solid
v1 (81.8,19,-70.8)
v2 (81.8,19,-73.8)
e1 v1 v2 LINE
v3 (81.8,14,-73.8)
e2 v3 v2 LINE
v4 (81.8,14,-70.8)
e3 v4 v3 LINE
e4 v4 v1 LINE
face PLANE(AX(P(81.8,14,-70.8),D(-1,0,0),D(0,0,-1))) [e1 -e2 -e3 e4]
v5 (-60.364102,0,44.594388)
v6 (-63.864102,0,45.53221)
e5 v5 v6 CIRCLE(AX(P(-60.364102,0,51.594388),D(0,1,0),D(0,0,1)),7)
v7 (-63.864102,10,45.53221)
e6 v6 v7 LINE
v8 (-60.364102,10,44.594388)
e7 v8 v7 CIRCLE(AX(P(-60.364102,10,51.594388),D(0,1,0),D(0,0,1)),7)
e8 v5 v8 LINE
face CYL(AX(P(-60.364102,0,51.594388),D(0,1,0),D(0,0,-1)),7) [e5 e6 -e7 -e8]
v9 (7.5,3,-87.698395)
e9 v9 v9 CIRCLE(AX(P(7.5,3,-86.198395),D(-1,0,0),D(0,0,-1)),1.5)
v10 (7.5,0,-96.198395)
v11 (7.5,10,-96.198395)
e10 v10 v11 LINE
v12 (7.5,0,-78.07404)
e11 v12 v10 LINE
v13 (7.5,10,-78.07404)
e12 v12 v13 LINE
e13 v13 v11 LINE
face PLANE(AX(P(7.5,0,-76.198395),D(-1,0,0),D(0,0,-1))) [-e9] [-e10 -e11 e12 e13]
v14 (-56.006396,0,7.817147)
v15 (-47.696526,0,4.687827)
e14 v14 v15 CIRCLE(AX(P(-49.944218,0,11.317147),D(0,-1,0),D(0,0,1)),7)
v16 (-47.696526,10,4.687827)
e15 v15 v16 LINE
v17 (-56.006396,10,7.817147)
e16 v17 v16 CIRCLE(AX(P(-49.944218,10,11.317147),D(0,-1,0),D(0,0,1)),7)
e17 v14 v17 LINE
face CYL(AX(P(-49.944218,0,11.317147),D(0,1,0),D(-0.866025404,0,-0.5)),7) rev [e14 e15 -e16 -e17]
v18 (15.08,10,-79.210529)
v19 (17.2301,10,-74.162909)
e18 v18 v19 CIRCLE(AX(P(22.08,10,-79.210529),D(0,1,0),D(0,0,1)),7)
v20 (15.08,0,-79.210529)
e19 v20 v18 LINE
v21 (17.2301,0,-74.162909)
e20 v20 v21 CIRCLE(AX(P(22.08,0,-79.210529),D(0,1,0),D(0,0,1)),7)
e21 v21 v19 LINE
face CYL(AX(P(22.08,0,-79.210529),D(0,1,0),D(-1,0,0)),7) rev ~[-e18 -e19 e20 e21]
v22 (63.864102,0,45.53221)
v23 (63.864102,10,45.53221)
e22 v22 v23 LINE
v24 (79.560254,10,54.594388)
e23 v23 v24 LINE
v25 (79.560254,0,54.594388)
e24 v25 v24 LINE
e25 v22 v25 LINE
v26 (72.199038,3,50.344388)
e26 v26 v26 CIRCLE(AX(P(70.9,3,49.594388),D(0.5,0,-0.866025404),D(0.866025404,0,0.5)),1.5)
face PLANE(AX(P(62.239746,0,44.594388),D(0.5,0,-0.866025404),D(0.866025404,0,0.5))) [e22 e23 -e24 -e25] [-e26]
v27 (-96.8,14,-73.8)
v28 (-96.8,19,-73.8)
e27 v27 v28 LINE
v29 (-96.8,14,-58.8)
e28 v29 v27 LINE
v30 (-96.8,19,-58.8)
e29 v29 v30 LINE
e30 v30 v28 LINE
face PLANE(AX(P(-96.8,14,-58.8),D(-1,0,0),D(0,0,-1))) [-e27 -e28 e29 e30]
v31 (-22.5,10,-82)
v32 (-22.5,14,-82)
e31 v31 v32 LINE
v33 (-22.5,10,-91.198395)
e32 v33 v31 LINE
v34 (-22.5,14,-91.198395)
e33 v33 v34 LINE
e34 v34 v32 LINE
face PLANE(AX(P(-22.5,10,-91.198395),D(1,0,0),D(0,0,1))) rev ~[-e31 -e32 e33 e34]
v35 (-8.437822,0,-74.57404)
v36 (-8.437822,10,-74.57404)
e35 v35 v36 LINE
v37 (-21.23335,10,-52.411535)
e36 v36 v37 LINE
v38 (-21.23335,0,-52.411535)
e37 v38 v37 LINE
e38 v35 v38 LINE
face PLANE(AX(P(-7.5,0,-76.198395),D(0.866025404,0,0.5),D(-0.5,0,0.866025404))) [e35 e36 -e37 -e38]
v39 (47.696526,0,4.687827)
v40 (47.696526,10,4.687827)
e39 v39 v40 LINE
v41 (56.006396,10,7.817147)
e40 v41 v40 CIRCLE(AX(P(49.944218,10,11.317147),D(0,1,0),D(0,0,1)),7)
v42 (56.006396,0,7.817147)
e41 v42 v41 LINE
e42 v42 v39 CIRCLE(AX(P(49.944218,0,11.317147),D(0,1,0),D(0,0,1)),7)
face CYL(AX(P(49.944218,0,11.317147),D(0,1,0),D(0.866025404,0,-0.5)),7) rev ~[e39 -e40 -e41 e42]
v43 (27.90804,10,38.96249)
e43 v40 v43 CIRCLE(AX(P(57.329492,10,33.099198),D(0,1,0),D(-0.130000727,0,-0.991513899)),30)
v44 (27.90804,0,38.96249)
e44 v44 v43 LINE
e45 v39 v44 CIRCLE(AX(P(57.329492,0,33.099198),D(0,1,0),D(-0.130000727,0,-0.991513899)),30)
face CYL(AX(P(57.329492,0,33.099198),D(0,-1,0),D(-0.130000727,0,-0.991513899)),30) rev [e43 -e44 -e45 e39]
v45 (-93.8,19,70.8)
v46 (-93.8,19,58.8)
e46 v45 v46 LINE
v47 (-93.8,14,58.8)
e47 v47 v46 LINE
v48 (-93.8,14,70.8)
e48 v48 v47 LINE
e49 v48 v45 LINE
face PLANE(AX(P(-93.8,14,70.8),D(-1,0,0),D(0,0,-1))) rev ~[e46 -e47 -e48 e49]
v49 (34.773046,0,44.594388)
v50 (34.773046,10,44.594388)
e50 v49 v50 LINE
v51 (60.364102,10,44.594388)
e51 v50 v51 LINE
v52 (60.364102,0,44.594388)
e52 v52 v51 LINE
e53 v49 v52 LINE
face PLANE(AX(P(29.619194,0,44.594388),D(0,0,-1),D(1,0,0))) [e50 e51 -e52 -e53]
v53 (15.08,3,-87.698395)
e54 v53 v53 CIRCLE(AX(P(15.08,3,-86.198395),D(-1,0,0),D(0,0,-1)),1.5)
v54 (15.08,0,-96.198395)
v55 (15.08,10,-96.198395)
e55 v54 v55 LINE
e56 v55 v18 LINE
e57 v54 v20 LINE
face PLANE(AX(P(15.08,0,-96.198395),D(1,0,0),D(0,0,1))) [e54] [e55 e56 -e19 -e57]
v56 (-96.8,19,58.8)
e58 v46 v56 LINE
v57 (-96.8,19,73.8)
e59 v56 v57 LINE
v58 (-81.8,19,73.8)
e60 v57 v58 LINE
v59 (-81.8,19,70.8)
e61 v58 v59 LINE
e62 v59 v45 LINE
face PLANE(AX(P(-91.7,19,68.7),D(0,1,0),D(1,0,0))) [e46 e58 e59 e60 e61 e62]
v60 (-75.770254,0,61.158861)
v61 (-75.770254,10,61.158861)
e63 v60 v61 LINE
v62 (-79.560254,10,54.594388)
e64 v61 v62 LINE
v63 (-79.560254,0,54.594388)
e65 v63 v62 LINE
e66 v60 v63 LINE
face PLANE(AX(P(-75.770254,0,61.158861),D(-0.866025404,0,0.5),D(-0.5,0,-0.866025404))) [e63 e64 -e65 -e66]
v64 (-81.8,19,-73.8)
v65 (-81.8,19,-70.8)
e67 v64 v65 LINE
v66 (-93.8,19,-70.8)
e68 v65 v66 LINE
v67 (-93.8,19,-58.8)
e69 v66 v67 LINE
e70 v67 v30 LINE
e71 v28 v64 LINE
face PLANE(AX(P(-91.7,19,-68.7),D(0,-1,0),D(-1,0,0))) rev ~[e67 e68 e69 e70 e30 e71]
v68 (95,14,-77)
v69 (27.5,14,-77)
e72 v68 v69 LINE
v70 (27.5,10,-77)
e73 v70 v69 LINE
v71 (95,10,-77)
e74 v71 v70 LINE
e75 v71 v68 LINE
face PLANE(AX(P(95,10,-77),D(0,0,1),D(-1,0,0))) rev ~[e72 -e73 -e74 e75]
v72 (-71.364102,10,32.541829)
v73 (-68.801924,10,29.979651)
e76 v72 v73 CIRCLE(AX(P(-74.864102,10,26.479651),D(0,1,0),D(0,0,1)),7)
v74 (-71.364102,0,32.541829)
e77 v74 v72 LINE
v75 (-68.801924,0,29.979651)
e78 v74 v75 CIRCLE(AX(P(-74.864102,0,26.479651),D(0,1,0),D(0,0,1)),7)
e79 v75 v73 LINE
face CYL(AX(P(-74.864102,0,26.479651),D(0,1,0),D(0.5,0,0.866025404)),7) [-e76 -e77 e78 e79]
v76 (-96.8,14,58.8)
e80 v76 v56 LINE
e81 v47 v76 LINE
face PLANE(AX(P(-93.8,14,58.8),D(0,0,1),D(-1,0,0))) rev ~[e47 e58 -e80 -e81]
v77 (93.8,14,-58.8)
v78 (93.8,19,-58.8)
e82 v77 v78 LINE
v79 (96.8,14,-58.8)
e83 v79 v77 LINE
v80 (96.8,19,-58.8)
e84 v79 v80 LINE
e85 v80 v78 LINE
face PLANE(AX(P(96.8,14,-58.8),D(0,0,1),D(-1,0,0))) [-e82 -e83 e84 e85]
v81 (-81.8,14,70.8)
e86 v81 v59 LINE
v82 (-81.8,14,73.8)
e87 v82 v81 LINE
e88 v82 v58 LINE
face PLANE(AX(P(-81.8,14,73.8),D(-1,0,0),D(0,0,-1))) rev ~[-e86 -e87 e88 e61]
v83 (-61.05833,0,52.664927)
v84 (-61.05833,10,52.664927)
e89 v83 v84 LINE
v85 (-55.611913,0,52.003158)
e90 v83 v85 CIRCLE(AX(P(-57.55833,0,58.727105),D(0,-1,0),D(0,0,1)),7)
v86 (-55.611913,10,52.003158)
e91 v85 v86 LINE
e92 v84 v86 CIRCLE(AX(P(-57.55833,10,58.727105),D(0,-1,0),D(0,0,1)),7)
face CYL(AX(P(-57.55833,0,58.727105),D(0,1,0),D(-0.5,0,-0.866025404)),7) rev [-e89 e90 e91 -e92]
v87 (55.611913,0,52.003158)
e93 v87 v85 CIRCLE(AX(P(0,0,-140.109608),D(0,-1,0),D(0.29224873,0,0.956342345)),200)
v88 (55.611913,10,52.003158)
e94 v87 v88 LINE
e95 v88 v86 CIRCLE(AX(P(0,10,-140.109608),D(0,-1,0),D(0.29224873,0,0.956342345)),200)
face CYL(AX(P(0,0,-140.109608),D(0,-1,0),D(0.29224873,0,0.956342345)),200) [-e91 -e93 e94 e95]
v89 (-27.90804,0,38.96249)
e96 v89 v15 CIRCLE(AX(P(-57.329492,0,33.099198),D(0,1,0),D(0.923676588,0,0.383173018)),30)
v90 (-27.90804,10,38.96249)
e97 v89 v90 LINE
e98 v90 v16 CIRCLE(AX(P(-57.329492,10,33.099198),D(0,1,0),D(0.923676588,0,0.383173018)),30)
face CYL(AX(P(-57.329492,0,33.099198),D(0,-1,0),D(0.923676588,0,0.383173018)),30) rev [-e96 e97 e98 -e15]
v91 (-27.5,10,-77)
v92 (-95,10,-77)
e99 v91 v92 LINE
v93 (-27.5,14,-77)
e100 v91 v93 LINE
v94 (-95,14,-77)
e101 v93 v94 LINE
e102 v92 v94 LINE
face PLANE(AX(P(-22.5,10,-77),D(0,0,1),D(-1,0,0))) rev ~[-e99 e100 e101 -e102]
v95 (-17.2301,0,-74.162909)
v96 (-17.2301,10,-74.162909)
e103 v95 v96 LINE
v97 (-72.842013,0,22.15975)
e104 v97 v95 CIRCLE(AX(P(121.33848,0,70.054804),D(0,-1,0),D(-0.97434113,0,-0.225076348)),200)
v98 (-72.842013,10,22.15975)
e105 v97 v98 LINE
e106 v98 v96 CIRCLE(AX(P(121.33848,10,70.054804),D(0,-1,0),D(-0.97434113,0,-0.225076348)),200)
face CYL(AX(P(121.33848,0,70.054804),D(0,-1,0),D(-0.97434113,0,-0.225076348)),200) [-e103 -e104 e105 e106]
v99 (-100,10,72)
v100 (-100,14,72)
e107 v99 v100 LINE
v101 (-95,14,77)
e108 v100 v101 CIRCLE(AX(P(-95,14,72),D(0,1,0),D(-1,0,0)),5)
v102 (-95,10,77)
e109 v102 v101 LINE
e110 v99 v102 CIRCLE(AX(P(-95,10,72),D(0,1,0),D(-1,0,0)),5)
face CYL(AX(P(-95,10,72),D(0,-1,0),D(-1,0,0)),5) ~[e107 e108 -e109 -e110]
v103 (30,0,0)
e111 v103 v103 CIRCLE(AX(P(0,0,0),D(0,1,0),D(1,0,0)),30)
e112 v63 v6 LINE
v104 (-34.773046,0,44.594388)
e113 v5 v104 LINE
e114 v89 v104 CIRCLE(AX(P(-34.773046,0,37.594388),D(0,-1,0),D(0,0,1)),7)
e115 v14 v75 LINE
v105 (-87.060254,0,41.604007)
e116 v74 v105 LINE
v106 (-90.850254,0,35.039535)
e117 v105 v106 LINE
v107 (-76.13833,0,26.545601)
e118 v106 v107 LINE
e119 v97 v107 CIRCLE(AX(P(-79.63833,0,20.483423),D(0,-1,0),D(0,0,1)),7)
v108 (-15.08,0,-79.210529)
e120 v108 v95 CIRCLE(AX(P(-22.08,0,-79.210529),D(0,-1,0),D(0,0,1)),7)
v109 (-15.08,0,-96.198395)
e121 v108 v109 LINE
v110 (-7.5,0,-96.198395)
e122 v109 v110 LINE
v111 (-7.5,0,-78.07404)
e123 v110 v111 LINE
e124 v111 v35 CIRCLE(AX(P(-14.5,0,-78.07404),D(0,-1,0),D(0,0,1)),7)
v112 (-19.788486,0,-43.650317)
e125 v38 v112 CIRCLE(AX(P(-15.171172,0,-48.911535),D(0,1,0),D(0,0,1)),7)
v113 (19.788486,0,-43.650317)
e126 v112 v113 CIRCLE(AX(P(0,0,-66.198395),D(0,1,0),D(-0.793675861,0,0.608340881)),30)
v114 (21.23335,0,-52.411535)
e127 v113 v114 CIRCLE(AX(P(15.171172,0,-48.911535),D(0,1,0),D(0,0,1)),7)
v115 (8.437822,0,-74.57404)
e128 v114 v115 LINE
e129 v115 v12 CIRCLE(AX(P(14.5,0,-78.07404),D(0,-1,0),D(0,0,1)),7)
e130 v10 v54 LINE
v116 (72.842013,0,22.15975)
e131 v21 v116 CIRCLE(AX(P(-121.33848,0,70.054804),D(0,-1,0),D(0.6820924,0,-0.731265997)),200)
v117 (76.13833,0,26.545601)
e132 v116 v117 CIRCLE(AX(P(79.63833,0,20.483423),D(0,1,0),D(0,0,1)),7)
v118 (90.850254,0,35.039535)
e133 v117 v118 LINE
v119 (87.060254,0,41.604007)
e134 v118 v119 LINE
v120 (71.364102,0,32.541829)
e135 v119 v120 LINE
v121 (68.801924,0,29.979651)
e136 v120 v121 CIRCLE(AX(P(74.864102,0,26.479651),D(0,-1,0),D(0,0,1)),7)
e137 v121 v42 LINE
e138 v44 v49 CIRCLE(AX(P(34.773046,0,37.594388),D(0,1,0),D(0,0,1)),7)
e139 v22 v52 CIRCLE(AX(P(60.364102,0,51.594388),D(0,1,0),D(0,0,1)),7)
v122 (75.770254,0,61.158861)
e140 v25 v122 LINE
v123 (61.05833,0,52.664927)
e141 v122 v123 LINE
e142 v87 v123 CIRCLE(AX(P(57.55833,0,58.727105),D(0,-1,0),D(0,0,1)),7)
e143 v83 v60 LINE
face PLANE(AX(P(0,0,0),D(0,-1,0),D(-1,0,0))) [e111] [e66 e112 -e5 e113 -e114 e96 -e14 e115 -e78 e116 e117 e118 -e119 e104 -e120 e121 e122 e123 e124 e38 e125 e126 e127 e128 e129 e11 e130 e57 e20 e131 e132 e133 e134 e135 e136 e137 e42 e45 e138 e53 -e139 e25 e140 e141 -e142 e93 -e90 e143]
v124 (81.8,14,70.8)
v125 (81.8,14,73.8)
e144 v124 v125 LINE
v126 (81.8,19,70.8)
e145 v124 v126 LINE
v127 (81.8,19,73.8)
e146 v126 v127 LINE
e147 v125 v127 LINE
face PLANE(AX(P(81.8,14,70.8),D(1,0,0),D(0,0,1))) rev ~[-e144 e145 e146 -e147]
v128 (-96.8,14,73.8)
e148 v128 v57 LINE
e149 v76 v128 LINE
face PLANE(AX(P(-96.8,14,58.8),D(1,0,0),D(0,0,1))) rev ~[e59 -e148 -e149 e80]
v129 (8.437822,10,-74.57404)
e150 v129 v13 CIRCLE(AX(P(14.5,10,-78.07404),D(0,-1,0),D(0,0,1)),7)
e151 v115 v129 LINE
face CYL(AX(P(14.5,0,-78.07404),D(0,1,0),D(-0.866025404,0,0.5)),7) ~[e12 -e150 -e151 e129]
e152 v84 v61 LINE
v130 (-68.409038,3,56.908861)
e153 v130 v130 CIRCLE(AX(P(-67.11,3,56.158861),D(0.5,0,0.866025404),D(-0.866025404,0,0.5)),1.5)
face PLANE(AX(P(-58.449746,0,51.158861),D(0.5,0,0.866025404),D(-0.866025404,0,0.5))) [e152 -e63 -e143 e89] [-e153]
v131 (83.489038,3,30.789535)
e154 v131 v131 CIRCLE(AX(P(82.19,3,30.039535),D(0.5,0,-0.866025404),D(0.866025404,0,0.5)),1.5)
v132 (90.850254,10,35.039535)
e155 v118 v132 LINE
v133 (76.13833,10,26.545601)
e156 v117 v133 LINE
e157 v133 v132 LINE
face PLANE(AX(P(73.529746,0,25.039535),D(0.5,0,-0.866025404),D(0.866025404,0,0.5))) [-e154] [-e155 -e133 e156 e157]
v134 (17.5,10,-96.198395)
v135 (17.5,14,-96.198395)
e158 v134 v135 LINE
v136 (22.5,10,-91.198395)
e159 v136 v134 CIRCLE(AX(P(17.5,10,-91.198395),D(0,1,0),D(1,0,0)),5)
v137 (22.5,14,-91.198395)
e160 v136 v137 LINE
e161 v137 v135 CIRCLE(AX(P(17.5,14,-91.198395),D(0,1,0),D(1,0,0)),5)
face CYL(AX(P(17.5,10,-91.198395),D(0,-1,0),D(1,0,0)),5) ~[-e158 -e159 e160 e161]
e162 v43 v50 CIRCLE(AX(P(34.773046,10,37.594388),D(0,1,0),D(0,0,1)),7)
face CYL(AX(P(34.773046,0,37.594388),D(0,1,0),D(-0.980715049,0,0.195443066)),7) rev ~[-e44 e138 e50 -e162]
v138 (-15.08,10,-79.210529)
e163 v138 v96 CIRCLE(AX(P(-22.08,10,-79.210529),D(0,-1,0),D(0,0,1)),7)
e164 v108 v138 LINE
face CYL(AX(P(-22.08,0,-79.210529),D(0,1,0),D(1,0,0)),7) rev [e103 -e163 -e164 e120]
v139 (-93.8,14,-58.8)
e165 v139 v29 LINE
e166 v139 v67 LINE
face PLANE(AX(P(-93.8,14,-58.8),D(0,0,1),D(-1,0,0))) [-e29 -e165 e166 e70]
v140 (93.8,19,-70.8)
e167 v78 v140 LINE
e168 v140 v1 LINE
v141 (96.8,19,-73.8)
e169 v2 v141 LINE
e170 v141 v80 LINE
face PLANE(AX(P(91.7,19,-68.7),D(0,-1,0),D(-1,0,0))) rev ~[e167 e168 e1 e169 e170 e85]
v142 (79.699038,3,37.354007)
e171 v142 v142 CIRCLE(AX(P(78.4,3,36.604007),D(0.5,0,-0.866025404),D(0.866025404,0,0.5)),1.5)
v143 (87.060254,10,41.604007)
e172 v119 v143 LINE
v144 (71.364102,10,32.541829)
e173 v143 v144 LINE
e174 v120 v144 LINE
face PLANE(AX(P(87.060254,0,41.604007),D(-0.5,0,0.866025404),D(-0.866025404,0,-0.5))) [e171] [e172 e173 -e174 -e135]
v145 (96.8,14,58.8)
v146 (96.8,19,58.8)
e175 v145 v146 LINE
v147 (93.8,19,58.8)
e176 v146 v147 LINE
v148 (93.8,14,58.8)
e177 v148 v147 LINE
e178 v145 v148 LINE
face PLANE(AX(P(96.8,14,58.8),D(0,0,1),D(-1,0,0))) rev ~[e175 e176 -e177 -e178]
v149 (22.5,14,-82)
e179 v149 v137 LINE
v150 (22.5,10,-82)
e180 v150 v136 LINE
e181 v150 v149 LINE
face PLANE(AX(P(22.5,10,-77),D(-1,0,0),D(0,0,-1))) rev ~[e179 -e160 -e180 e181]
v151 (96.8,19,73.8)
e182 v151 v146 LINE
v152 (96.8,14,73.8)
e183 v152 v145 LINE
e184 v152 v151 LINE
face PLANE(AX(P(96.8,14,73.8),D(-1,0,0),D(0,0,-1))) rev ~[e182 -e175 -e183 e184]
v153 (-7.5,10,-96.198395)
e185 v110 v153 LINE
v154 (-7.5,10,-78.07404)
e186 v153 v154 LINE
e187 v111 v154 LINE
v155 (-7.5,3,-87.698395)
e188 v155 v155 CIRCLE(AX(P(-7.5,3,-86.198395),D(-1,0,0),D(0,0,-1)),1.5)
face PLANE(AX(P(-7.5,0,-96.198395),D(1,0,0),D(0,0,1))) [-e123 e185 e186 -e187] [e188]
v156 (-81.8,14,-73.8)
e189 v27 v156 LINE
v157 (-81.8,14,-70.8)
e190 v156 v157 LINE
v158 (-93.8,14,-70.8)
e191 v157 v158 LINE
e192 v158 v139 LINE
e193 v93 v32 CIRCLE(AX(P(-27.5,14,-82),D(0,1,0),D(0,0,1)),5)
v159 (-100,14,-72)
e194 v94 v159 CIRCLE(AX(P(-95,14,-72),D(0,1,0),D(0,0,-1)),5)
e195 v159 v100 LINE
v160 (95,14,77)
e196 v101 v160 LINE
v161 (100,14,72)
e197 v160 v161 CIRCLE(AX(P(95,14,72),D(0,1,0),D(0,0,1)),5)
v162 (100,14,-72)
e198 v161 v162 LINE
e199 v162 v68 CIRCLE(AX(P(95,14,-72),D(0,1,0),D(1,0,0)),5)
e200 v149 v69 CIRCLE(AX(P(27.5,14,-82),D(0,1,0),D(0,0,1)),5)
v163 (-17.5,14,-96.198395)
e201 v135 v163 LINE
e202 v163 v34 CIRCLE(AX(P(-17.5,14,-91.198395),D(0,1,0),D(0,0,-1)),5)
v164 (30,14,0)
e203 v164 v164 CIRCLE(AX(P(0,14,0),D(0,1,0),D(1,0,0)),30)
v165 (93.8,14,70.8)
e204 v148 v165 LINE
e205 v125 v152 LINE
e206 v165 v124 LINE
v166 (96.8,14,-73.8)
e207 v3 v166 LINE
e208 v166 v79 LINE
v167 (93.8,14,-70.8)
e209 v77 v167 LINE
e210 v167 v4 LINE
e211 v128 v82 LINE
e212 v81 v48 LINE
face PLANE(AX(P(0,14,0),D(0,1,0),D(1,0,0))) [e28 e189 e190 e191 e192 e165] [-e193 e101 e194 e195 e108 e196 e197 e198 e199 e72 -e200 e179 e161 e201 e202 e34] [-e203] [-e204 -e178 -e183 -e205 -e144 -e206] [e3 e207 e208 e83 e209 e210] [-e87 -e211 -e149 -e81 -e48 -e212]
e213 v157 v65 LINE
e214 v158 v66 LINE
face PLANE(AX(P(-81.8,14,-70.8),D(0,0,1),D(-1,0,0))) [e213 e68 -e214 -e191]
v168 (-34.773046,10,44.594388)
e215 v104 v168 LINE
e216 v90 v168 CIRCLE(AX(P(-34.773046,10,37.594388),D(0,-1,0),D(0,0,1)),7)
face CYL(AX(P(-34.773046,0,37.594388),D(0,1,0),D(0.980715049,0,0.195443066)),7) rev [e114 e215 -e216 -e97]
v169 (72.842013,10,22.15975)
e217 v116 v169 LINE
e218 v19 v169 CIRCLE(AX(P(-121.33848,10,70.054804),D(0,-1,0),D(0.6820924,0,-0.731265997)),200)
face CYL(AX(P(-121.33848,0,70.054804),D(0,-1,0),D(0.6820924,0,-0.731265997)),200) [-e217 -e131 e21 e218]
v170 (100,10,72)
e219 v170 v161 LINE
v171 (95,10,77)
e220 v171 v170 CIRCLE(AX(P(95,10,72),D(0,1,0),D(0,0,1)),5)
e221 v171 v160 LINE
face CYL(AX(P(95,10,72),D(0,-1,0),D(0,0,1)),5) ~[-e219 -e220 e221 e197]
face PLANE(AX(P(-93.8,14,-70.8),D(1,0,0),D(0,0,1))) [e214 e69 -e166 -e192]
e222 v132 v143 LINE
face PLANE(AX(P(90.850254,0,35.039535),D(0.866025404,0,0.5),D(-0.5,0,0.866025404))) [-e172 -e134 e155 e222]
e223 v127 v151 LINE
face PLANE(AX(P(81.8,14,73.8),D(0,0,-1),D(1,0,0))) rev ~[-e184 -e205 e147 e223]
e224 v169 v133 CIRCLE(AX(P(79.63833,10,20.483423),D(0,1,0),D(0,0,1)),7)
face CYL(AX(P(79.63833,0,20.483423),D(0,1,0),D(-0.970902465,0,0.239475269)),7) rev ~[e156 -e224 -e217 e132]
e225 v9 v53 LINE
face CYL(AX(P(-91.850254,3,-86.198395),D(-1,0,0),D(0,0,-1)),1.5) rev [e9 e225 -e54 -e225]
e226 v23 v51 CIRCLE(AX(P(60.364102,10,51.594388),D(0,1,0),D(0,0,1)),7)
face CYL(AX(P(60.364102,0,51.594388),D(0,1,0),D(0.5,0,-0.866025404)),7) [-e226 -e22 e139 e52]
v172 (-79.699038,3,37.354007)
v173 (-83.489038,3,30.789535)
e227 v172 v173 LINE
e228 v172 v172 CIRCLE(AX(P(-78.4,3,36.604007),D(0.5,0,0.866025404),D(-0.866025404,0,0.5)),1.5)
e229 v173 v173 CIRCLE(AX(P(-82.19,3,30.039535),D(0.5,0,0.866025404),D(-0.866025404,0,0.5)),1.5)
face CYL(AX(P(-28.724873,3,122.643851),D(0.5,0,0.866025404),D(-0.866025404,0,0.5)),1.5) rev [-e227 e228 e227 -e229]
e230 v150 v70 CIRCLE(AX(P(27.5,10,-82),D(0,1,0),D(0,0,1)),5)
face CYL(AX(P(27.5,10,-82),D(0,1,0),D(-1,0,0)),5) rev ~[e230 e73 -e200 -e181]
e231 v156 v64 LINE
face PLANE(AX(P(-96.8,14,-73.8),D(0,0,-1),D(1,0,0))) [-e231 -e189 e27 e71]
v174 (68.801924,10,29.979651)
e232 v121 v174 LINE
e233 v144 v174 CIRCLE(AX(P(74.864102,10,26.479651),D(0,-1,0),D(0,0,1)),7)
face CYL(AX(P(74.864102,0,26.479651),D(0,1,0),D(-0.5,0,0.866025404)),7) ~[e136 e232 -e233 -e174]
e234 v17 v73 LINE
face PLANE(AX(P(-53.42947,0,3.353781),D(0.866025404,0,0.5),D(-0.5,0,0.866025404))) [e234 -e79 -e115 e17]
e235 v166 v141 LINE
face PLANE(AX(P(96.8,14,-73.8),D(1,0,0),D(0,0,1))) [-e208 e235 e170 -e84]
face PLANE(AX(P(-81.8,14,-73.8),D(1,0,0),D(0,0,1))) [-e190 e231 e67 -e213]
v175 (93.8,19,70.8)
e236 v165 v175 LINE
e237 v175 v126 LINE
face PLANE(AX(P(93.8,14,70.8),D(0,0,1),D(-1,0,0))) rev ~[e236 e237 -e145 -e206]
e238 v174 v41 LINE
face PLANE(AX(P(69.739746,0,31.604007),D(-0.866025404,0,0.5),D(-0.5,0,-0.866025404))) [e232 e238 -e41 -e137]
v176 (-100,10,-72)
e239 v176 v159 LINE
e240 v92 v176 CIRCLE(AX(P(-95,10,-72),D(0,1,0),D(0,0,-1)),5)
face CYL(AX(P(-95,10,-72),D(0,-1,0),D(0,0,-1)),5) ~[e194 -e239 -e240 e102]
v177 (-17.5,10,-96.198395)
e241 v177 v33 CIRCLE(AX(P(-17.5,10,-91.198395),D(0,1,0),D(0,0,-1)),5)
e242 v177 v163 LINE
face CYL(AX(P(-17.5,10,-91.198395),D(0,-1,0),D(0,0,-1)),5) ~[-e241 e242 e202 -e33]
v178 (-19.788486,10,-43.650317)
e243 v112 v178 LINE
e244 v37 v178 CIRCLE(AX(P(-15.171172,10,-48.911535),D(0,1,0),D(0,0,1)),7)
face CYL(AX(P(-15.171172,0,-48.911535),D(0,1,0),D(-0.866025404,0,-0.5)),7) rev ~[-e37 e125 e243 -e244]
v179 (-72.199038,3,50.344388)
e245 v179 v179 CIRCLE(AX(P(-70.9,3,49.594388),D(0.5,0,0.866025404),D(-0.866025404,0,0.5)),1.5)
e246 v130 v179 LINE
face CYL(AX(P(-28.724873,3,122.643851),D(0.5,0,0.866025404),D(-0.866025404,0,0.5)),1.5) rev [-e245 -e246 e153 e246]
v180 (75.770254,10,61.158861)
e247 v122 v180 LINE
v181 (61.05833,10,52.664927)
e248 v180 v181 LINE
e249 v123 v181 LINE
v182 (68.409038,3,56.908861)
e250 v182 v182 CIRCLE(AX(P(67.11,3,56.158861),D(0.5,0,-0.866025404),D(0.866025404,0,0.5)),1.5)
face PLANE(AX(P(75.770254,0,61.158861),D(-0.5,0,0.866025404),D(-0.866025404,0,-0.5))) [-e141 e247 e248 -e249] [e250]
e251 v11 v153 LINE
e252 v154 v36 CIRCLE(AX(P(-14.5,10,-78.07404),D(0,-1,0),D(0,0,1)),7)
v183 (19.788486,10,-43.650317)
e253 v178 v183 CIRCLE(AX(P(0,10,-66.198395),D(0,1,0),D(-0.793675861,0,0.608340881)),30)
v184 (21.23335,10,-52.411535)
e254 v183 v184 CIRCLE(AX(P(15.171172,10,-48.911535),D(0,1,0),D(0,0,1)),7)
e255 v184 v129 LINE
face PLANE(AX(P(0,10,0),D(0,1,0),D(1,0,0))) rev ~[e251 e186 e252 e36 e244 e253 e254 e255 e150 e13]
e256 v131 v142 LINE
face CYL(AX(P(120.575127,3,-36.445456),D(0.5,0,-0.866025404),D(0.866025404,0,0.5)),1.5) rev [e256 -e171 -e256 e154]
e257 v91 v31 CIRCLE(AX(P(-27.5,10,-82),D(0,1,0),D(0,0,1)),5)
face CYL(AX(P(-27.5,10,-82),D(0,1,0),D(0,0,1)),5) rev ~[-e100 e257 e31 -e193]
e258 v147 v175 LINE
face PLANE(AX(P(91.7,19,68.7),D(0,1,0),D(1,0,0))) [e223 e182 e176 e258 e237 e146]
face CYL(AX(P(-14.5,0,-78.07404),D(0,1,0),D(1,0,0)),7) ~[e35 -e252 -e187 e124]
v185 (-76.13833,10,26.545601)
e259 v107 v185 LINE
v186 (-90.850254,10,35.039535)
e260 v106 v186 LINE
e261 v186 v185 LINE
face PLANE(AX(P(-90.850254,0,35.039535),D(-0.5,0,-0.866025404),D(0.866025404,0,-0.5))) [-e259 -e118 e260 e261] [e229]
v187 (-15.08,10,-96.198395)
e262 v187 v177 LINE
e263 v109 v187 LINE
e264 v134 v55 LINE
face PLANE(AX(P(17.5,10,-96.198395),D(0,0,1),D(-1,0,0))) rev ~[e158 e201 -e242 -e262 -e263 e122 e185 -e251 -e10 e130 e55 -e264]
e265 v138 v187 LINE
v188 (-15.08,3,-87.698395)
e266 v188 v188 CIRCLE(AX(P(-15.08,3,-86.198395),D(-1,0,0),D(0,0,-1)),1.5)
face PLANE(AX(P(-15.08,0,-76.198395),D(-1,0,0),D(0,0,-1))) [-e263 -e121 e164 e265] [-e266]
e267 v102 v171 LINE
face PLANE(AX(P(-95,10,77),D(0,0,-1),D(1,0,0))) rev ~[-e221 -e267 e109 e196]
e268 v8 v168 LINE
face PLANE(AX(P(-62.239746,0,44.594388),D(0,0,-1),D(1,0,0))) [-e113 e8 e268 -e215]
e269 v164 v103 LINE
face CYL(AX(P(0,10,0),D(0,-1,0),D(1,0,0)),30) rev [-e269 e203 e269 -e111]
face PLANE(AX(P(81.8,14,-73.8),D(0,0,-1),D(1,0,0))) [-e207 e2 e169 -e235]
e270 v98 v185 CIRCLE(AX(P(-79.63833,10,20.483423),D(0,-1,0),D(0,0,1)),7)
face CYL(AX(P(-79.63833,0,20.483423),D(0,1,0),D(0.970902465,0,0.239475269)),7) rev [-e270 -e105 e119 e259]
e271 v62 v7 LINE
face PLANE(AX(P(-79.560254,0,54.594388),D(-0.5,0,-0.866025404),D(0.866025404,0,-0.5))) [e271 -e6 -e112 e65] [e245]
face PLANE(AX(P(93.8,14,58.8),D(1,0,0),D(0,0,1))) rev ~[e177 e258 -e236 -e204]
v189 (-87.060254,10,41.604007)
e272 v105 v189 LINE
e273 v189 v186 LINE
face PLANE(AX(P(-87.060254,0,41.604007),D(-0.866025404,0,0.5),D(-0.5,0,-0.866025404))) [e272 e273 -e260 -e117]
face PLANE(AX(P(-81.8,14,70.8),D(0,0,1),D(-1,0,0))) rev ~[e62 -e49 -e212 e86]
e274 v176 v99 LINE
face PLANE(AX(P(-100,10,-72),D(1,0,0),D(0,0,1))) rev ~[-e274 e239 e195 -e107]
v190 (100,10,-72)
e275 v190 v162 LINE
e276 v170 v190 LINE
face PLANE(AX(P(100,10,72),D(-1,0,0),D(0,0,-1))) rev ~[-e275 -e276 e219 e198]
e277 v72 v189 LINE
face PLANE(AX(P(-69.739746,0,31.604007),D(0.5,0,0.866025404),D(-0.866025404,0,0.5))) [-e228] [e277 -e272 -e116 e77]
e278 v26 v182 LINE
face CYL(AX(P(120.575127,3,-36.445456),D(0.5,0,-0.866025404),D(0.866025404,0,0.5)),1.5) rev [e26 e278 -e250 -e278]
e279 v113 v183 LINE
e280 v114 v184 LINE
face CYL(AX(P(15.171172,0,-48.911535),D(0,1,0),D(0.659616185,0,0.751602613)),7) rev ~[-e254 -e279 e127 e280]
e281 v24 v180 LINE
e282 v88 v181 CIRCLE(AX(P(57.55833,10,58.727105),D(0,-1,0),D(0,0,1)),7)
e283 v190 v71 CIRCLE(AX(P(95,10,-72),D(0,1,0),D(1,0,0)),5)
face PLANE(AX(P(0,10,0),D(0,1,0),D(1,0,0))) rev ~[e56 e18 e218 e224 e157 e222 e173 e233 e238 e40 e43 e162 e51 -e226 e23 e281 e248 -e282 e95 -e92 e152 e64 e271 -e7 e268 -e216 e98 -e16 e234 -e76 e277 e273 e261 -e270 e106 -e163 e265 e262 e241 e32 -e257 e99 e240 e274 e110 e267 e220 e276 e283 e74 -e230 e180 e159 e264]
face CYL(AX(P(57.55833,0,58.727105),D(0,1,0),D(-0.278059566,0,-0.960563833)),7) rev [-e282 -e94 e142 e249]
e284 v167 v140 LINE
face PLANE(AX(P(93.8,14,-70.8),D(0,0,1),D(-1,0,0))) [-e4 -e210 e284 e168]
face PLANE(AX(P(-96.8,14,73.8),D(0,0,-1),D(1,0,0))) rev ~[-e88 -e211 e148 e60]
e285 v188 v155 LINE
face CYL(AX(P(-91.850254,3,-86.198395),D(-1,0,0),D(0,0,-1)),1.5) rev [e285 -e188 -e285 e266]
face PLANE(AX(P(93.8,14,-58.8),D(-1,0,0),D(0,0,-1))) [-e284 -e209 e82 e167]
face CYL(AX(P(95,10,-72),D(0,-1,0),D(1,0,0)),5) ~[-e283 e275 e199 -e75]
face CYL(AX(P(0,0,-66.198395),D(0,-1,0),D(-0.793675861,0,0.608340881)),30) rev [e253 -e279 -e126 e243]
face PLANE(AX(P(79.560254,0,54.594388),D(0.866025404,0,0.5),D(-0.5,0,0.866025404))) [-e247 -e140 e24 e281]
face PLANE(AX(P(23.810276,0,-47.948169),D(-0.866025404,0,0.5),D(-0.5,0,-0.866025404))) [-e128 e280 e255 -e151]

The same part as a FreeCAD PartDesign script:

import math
import FreeCAD as App
import Part
import Sketcher
Q = App.Units.Quantity


def edges_at(feature, points):
    """Names of the edges that pass closest to the given points."""
    edges = feature.Shape.Edges
    near = lambda p: min(range(len(edges)), key=lambda i: edges[i].distToShape(Part.Vertex(*p))[0])
    return sorted({f"Edge{near(p) + 1}" for p in points})

doc = App.newDocument("Part")
body = doc.addObject("PartDesign::Body", "Body")

# Sketch on XZ plane
sketch1 = doc.addObject("Sketcher::SketchObject", "Sketch")
body.addObject(sketch1)
sketch1.AttachmentSupport = (doc.XZ_Plane, [""])
sketch1.MapMode = "FlatFace"
sketch1.addGeometry(Part.LineSegment(App.Vector(-15, -96, 0), App.Vector(-15, -76, 0)), False)
sketch1.addGeometry(Part.ArcOfCircle(Part.Circle(App.Vector(121, 70, 0), App.Vector(0, 0, 1), 200), math.radians(-167), math.radians(-133)), False)
sketch1.addGeometry(Part.LineSegment(App.Vector(-74, 25, 0), App.Vector(-91, 35, 0)), False)
sketch1.addGeometry(Part.LineSegment(App.Vector(-91, 35, 0), App.Vector(-87, 42, 0)), False)
sketch1.addGeometry(Part.LineSegment(App.Vector(-87, 42, 0), App.Vector(-70, 32, 0)), False)
sketch1.addGeometry(Part.LineSegment(App.Vector(-70, 32, 0), App.Vector(-53, 3, 0)), False)
sketch1.addGeometry(Part.ArcOfCircle(Part.Circle(App.Vector(-57, 33, 0), App.Vector(0, 0, 1), 30), math.radians(-83), math.radians(23)), False)
sketch1.addGeometry(Part.LineSegment(App.Vector(-30, 45, 0), App.Vector(-62, 45, 0)), False)
sketch1.addGeometry(Part.LineSegment(App.Vector(-62, 45, 0), App.Vector(-80, 55, 0)), False)
sketch1.addGeometry(Part.LineSegment(App.Vector(-80, 55, 0), App.Vector(-76, 61, 0)), False)
sketch1.addGeometry(Part.LineSegment(App.Vector(-76, 61, 0), App.Vector(-58, 51, 0)), False)
sketch1.addGeometry(Part.ArcOfCircle(Part.Circle(App.Vector(0, -140, 0), App.Vector(0, 0, 1), 200), math.radians(73), math.radians(107)), False)
sketch1.addGeometry(Part.LineSegment(App.Vector(58, 51, 0), App.Vector(76, 61, 0)), False)
sketch1.addGeometry(Part.LineSegment(App.Vector(76, 61, 0), App.Vector(80, 55, 0)), False)
sketch1.addGeometry(Part.LineSegment(App.Vector(80, 55, 0), App.Vector(62, 45, 0)), False)
sketch1.addGeometry(Part.LineSegment(App.Vector(62, 45, 0), App.Vector(30, 45, 0)), False)
sketch1.addGeometry(Part.ArcOfCircle(Part.Circle(App.Vector(57, 33, 0), App.Vector(0, 0, 1), 30), math.radians(157), math.radians(263)), False)
sketch1.addGeometry(Part.LineSegment(App.Vector(53, 3, 0), App.Vector(70, 32, 0)), False)
sketch1.addGeometry(Part.LineSegment(App.Vector(70, 32, 0), App.Vector(87, 42, 0)), False)
sketch1.addGeometry(Part.LineSegment(App.Vector(87, 42, 0), App.Vector(91, 35, 0)), False)
sketch1.addGeometry(Part.LineSegment(App.Vector(91, 35, 0), App.Vector(74, 25, 0)), False)
sketch1.addGeometry(Part.ArcOfCircle(Part.Circle(App.Vector(-121, 70, 0), App.Vector(0, 0, 1), 200), math.radians(-47), math.radians(-13)), False)
sketch1.addGeometry(Part.LineSegment(App.Vector(15, -76, 0), App.Vector(15, -96, 0)), False)
sketch1.addGeometry(Part.LineSegment(App.Vector(15, -96, 0), App.Vector(8, -96, 0)), False)
sketch1.addGeometry(Part.LineSegment(App.Vector(8, -96, 0), App.Vector(8, -76, 0)), False)
sketch1.addGeometry(Part.LineSegment(App.Vector(8, -76, 0), App.Vector(24, -48, 0)), False)
sketch1.addGeometry(Part.ArcOfCircle(Part.Circle(App.Vector(0, -66, 0), App.Vector(0, 0, 1), 30), math.radians(37), math.radians(143)), False)
sketch1.addGeometry(Part.LineSegment(App.Vector(-24, -48, 0), App.Vector(-8, -76, 0)), False)
sketch1.addGeometry(Part.LineSegment(App.Vector(-8, -76, 0), App.Vector(-8, -96, 0)), False)
sketch1.addGeometry(Part.LineSegment(App.Vector(-8, -96, 0), App.Vector(-15, -96, 0)), False)
sketch1.addGeometry(Part.Circle(App.Vector(0, 0, 0), App.Vector(0, 0, 1), 30), False)
sketch1.addConstraint(Sketcher.Constraint("Coincident", 0, 2, 1, 2))
sketch1.addConstraint(Sketcher.Constraint("Coincident", 1, 1, 2, 1))
sketch1.addConstraint(Sketcher.Constraint("Coincident", 2, 2, 3, 1))
sketch1.addConstraint(Sketcher.Constraint("Coincident", 3, 2, 4, 1))
sketch1.addConstraint(Sketcher.Constraint("Coincident", 4, 2, 5, 1))
sketch1.addConstraint(Sketcher.Constraint("Coincident", 5, 2, 6, 1))
sketch1.addConstraint(Sketcher.Constraint("Coincident", 6, 2, 7, 1))
sketch1.addConstraint(Sketcher.Constraint("Coincident", 7, 2, 8, 1))
sketch1.addConstraint(Sketcher.Constraint("Coincident", 8, 2, 9, 1))
sketch1.addConstraint(Sketcher.Constraint("Coincident", 9, 2, 10, 1))
sketch1.addConstraint(Sketcher.Constraint("Coincident", 10, 2, 11, 2))
sketch1.addConstraint(Sketcher.Constraint("Coincident", 11, 1, 12, 1))
sketch1.addConstraint(Sketcher.Constraint("Coincident", 12, 2, 13, 1))
sketch1.addConstraint(Sketcher.Constraint("Coincident", 13, 2, 14, 1))
sketch1.addConstraint(Sketcher.Constraint("Coincident", 14, 2, 15, 1))
sketch1.addConstraint(Sketcher.Constraint("Coincident", 15, 2, 16, 1))
sketch1.addConstraint(Sketcher.Constraint("Coincident", 16, 2, 17, 1))
sketch1.addConstraint(Sketcher.Constraint("Coincident", 17, 2, 18, 1))
sketch1.addConstraint(Sketcher.Constraint("Coincident", 18, 2, 19, 1))
sketch1.addConstraint(Sketcher.Constraint("Coincident", 19, 2, 20, 1))
sketch1.addConstraint(Sketcher.Constraint("Coincident", 20, 2, 21, 2))
sketch1.addConstraint(Sketcher.Constraint("Coincident", 21, 1, 22, 1))
sketch1.addConstraint(Sketcher.Constraint("Coincident", 22, 2, 23, 1))
sketch1.addConstraint(Sketcher.Constraint("Coincident", 23, 2, 24, 1))
sketch1.addConstraint(Sketcher.Constraint("Coincident", 24, 2, 25, 1))
sketch1.addConstraint(Sketcher.Constraint("Coincident", 25, 2, 26, 1))
sketch1.addConstraint(Sketcher.Constraint("Coincident", 26, 2, 27, 1))
sketch1.addConstraint(Sketcher.Constraint("Coincident", 27, 2, 28, 1))
sketch1.addConstraint(Sketcher.Constraint("Coincident", 28, 2, 29, 1))
sketch1.addConstraint(Sketcher.Constraint("Coincident", 29, 2, 0, 1))
sketch1.addConstraint(Sketcher.Constraint("Vertical", 0))
sketch1.addConstraint(Sketcher.Constraint("Horizontal", 7))
sketch1.addConstraint(Sketcher.Constraint("Horizontal", 15))
sketch1.addConstraint(Sketcher.Constraint("Vertical", 22))
sketch1.addConstraint(Sketcher.Constraint("Horizontal", 23))
sketch1.addConstraint(Sketcher.Constraint("Vertical", 24))
sketch1.addConstraint(Sketcher.Constraint("Vertical", 28))
sketch1.addConstraint(Sketcher.Constraint("Horizontal", 29))
sketch1.addConstraint(Sketcher.Constraint("Coincident", 30, 3, -1, 1))
sketch1.addConstraint(Sketcher.Constraint("Equal", 1, 11))
sketch1.addConstraint(Sketcher.Constraint("Equal", 6, 16))
sketch1.addConstraint(Sketcher.Constraint("Equal", 11, 21))
sketch1.addConstraint(Sketcher.Constraint("Equal", 16, 26))
sketch1.addConstraint(Sketcher.Constraint("Equal", 26, 30))
sketch1.addConstraint(Sketcher.Constraint("Symmetric", 6, 3, 16, 3, -2))
sketch1.addConstraint(Sketcher.Constraint("Symmetric", 1, 3, 21, 3, -2))
sketch1.addConstraint(Sketcher.Constraint("Symmetric", 10, 2, 11, 1, -2))
sketch1.addConstraint(Sketcher.Constraint("Symmetric", 9, 2, 12, 2, -2))
sketch1.addConstraint(Sketcher.Constraint("Symmetric", 8, 2, 13, 2, -2))
sketch1.addConstraint(Sketcher.Constraint("Symmetric", 7, 2, 14, 2, -2))
sketch1.addConstraint(Sketcher.Constraint("Symmetric", 4, 2, 17, 2, -2))
sketch1.addConstraint(Sketcher.Constraint("Symmetric", 3, 2, 18, 2, -2))
sketch1.addConstraint(Sketcher.Constraint("Symmetric", 2, 2, 19, 2, -2))
sketch1.addConstraint(Sketcher.Constraint("Symmetric", 25, 2, 26, 2, -2))
sketch1.addConstraint(Sketcher.Constraint("Symmetric", 24, 2, 27, 2, -2))
sketch1.addConstraint(Sketcher.Constraint("Symmetric", 22, 2, 29, 2, -2))
sketch1.addConstraint(Sketcher.Constraint("Perpendicular", 2, 3))
sketch1.addConstraint(Sketcher.Constraint("Perpendicular", 3, 4))
sketch1.addConstraint(Sketcher.Constraint("Parallel", 4, 8))
sketch1.addConstraint(Sketcher.Constraint("Perpendicular", 8, 9))
sketch1.addConstraint(Sketcher.Constraint("Perpendicular", 9, 10))
sketch1.addConstraint(Sketcher.Constraint("Perpendicular", 5, 12))
sketch1.addConstraint(Sketcher.Constraint("Perpendicular", 10, 17))
sketch1.addConstraint(Sketcher.Constraint("Perpendicular", 19, 20))
sketch1.addConstraint(Sketcher.Constraint("Parallel", 17, 25))
sketch1.addConstraint(Sketcher.Constraint("Horizontal", 21, 1, 24, 2))
sketch1.addConstraint(Sketcher.Constraint("Equal", 2, 4))
sketch1.addConstraint(Sketcher.Constraint("Equal", 4, 8))
sketch1.addConstraint(Sketcher.Constraint("Equal", 3, 9))
sketch1.addConstraint(Sketcher.Constraint("Equal", 8, 10))
sketch1.addConstraint(Sketcher.Constraint("Equal", 17, 25))
sketch1.addConstraint(Sketcher.Constraint("Diameter", 30, Q("60 mm")))
sketch1.addConstraint(Sketcher.Constraint("Radius", 1, Q("200 mm")))
sketch1.addConstraint(Sketcher.Constraint("DistanceY", 0, 1, 0, 2, Q("20 mm")))
sketch1.addConstraint(Sketcher.Constraint("Angle", 2, Q("150 deg")))
sketch1.addConstraint(Sketcher.Constraint("Distance", 2, Q("20 mm")))
sketch1.addConstraint(Sketcher.Constraint("DistanceY", 0, 2, 26, 3, Q("10 mm")))
sketch1.addConstraint(Sketcher.Constraint("DistanceX", 27, 2, 24, 2, Q("15 mm")))
sketch1.addConstraint(Sketcher.Constraint("DistanceX", 23, 2, 23, 1, Q("7.58 mm")))
sketch1.addConstraint(Sketcher.Constraint("DistanceX", 4, 2, 7, 2, Q("7.5 mm")))
sketch1.addConstraint(Sketcher.Constraint("Distance", 3, Q("7.58 mm")))
sketch1.addConstraint(Sketcher.Constraint("DistanceX", 7, 2, 7, 1, Q("32.620552 mm")))
sketch1.addConstraint(Sketcher.Constraint("DistanceY", 26, 3, 1, 3, Q("136.253199 mm")))
sketch1.addConstraint(Sketcher.Constraint("DistanceX", 6, 3, -1, 1, Q("57.329492 mm")))
sketch1.addConstraint(Sketcher.Constraint("DistanceY", 11, 3, -1, 1, Q("140.109608 mm")))
sketch1.addConstraint(Sketcher.Constraint("DistanceX", 5, 2, -1, 1, Q("53.42947 mm")))
pad1 = doc.addObject("PartDesign::Pad", "Pad")
body.addObject(pad1)
pad1.Profile = sketch1
pad1.Length = 10
pad1.Reversed = True

# Sketch on YZ plane
sketch2 = doc.addObject("Sketcher::SketchObject", "Sketch001")
body.addObject(sketch2)
sketch2.AttachmentSupport = (doc.YZ_Plane, [""])
sketch2.MapMode = "FlatFace"
sketch2.AttachmentOffset = App.Placement(App.Vector(0, 0, -91.850254), App.Rotation())
sketch2.addGeometry(Part.Circle(App.Vector(3, -86.2, 0), App.Vector(0, 0, 1), 1.5), False)
sketch2.addConstraint(Sketcher.Constraint("Diameter", 0, Q("3 mm")))
sketch2.addConstraint(Sketcher.Constraint("DistanceX", -1, 1, 0, 3, Q("3 mm")))
sketch2.addConstraint(Sketcher.Constraint("DistanceY", 0, 3, -1, 1, Q("86.198395 mm")))
pocket1 = doc.addObject("PartDesign::Pocket", "Pocket")
body.addObject(pocket1)
pocket1.Profile = sketch2
pocket1.Length = 183.700508
pocket1.Reversed = True
doc.recompute()

polarpattern = doc.addObject("PartDesign::PolarPattern", "PolarPattern")
body.addObject(polarpattern)
polarpattern.Originals = [pocket1]
polarpattern.Axis = (doc.Y_Axis, [""])
polarpattern.Angle = 360
polarpattern.Occurrences = 3
body.Tip = polarpattern
doc.recompute()

fillet = doc.addObject("PartDesign::Fillet", "Fillet")
body.addObject(fillet)
fillet.Base = (polarpattern, edges_at(polarpattern, [
    (-69.74, 5, 31.604),
    (-73.53, 5, 25.04),
    (-15.08, 5, -76.198),
    (-7.5, 5, -76.198),
    (-23.81, 5, -47.948),
    (23.81, 5, -47.948),
    (7.5, 5, -76.198),
    (15.08, 5, -76.198),
    (73.53, 5, 25.04),
    (69.74, 5, 31.604),
    (53.429, 5, 3.354),
    (29.619, 5, 44.594),
    (62.24, 5, 44.594),
    (58.45, 5, 51.159),
    (-58.45, 5, 51.159),
    (-62.24, 5, 44.594),
    (-29.619, 5, 44.594),
    (-53.429, 5, 3.354),
]))
fillet.Radius = 7

# Sketch on XZ plane
sketch3 = doc.addObject("Sketcher::SketchObject", "Sketch002")
body.addObject(sketch3)
sketch3.AttachmentSupport = (doc.XZ_Plane, [""])
sketch3.MapMode = "FlatFace"
sketch3.AttachmentOffset = App.Placement(App.Vector(0, 0, -10), App.Rotation())
sketch3.addGeometry(Part.LineSegment(App.Vector(-95, 77, 0), App.Vector(95, 77, 0)), False)
sketch3.addGeometry(Part.ArcOfCircle(Part.Circle(App.Vector(95, 72, 0), App.Vector(0, 0, 1), 5), math.radians(0), math.radians(90)), False)
sketch3.addGeometry(Part.LineSegment(App.Vector(100, 72, 0), App.Vector(100, -72, 0)), False)
sketch3.addGeometry(Part.ArcOfCircle(Part.Circle(App.Vector(95, -72, 0), App.Vector(0, 0, 1), 5), math.radians(-90), math.radians(0)), False)
sketch3.addGeometry(Part.LineSegment(App.Vector(95, -77, 0), App.Vector(22, -77, 0)), False)
sketch3.addGeometry(Part.LineSegment(App.Vector(22, -77, 0), App.Vector(22, -91, 0)), False)
sketch3.addGeometry(Part.ArcOfCircle(Part.Circle(App.Vector(18, -91, 0), App.Vector(0, 0, 1), 5), math.radians(-90), math.radians(0)), False)
sketch3.addGeometry(Part.LineSegment(App.Vector(18, -96, 0), App.Vector(-18, -96, 0)), False)
sketch3.addGeometry(Part.ArcOfCircle(Part.Circle(App.Vector(-18, -91, 0), App.Vector(0, 0, 1), 5), math.radians(180), math.radians(270)), False)
sketch3.addGeometry(Part.LineSegment(App.Vector(-22, -91, 0), App.Vector(-22, -77, 0)), False)
sketch3.addGeometry(Part.LineSegment(App.Vector(-22, -77, 0), App.Vector(-95, -77, 0)), False)
sketch3.addGeometry(Part.ArcOfCircle(Part.Circle(App.Vector(-95, -72, 0), App.Vector(0, 0, 1), 5), math.radians(180), math.radians(270)), False)
sketch3.addGeometry(Part.LineSegment(App.Vector(-100, -72, 0), App.Vector(-100, 72, 0)), False)
sketch3.addGeometry(Part.ArcOfCircle(Part.Circle(App.Vector(-95, 72, 0), App.Vector(0, 0, 1), 5), math.radians(90), math.radians(180)), False)
sketch3.addGeometry(Part.Circle(App.Vector(0, 0, 0), App.Vector(0, 0, 1), 30), False)
sketch3.addConstraint(Sketcher.Constraint("Tangent", 0, 2, 1, 2))
sketch3.addConstraint(Sketcher.Constraint("Tangent", 1, 1, 2, 1))
sketch3.addConstraint(Sketcher.Constraint("Tangent", 2, 2, 3, 2))
sketch3.addConstraint(Sketcher.Constraint("Tangent", 3, 1, 4, 1))
sketch3.addConstraint(Sketcher.Constraint("Coincident", 4, 2, 5, 1))
sketch3.addConstraint(Sketcher.Constraint("Tangent", 5, 2, 6, 2))
sketch3.addConstraint(Sketcher.Constraint("Tangent", 6, 1, 7, 1))
sketch3.addConstraint(Sketcher.Constraint("Tangent", 7, 2, 8, 2))
sketch3.addConstraint(Sketcher.Constraint("Tangent", 8, 1, 9, 1))
sketch3.addConstraint(Sketcher.Constraint("Coincident", 9, 2, 10, 1))
sketch3.addConstraint(Sketcher.Constraint("Tangent", 10, 2, 11, 2))
sketch3.addConstraint(Sketcher.Constraint("Tangent", 11, 1, 12, 1))
sketch3.addConstraint(Sketcher.Constraint("Tangent", 12, 2, 13, 2))
sketch3.addConstraint(Sketcher.Constraint("Tangent", 13, 1, 0, 1))
sketch3.addConstraint(Sketcher.Constraint("Horizontal", 0))
sketch3.addConstraint(Sketcher.Constraint("Vertical", 2))
sketch3.addConstraint(Sketcher.Constraint("Horizontal", 4))
sketch3.addConstraint(Sketcher.Constraint("Vertical", 5))
sketch3.addConstraint(Sketcher.Constraint("Horizontal", 7))
sketch3.addConstraint(Sketcher.Constraint("Vertical", 9))
sketch3.addConstraint(Sketcher.Constraint("Horizontal", 10))
sketch3.addConstraint(Sketcher.Constraint("Vertical", 12))
sketch3.addConstraint(Sketcher.Constraint("Coincident", 14, 3, -1, 1))
sketch3.addConstraint(Sketcher.Constraint("Equal", 1, 3))
sketch3.addConstraint(Sketcher.Constraint("Equal", 3, 6))
sketch3.addConstraint(Sketcher.Constraint("Equal", 6, 8))
sketch3.addConstraint(Sketcher.Constraint("Equal", 8, 11))
sketch3.addConstraint(Sketcher.Constraint("Equal", 11, 13))
sketch3.addConstraint(Sketcher.Constraint("Symmetric", 1, 3, 11, 3, -1, 1))
sketch3.addConstraint(Sketcher.Constraint("Symmetric", 4, 2, 9, 2, -2))
sketch3.addConstraint(Sketcher.Constraint("Diameter", 14, Q("60 mm")))
sketch3.addConstraint(Sketcher.Constraint("Radius", 1, Q("5 mm")))
sketch3.addConstraint(Sketcher.Constraint("DistanceX", 0, 1, 0, 2, Q("190 mm")))
sketch3.addConstraint(Sketcher.Constraint("DistanceX", 7, 2, 7, 1, Q("35 mm")))
sketch3.addConstraint(Sketcher.Constraint("DistanceY", 2, 2, 2, 1, Q("144 mm")))
sketch3.addConstraint(Sketcher.Constraint("DistanceY", 5, 2, 5, 1, Q("14.198395 mm")))
pad2 = doc.addObject("PartDesign::Pad", "Pad001")
body.addObject(pad2)
pad2.Profile = sketch3
pad2.Length = 4
pad2.Reversed = True

# Sketch on XZ plane
sketch4 = doc.addObject("Sketcher::SketchObject", "Sketch003")
body.addObject(sketch4)
sketch4.AttachmentSupport = (doc.XZ_Plane, [""])
sketch4.MapMode = "FlatFace"
sketch4.AttachmentOffset = App.Placement(App.Vector(0, 0, -14), App.Rotation())
sketch4.addGeometry(Part.LineSegment(App.Vector(-81.8, -73.8, 0), App.Vector(-96.8, -73.8, 0)), False)
sketch4.addGeometry(Part.LineSegment(App.Vector(-96.8, -73.8, 0), App.Vector(-96.8, -58.8, 0)), False)
sketch4.addGeometry(Part.LineSegment(App.Vector(-96.8, -58.8, 0), App.Vector(-93.8, -58.8, 0)), False)
sketch4.addGeometry(Part.LineSegment(App.Vector(-93.8, -58.8, 0), App.Vector(-93.8, -70.8, 0)), False)
sketch4.addGeometry(Part.LineSegment(App.Vector(-93.8, -70.8, 0), App.Vector(-81.8, -70.8, 0)), False)
sketch4.addGeometry(Part.LineSegment(App.Vector(-81.8, -70.8, 0), App.Vector(-81.8, -73.8, 0)), False)
sketch4.addGeometry(Part.LineSegment(App.Vector(81.8, -70.8, 0), App.Vector(93.8, -70.8, 0)), False)
sketch4.addGeometry(Part.LineSegment(App.Vector(93.8, -70.8, 0), App.Vector(93.8, -58.8, 0)), False)
sketch4.addGeometry(Part.LineSegment(App.Vector(93.8, -58.8, 0), App.Vector(96.8, -58.8, 0)), False)
sketch4.addGeometry(Part.LineSegment(App.Vector(96.8, -58.8, 0), App.Vector(96.8, -73.8, 0)), False)
sketch4.addGeometry(Part.LineSegment(App.Vector(96.8, -73.8, 0), App.Vector(81.8, -73.8, 0)), False)
sketch4.addGeometry(Part.LineSegment(App.Vector(81.8, -73.8, 0), App.Vector(81.8, -70.8, 0)), False)
sketch4.addGeometry(Part.LineSegment(App.Vector(93.8, 58.8, 0), App.Vector(93.8, 70.8, 0)), False)
sketch4.addGeometry(Part.LineSegment(App.Vector(93.8, 70.8, 0), App.Vector(81.8, 70.8, 0)), False)
sketch4.addGeometry(Part.LineSegment(App.Vector(81.8, 70.8, 0), App.Vector(81.8, 73.8, 0)), False)
sketch4.addGeometry(Part.LineSegment(App.Vector(81.8, 73.8, 0), App.Vector(96.8, 73.8, 0)), False)
sketch4.addGeometry(Part.LineSegment(App.Vector(96.8, 73.8, 0), App.Vector(96.8, 58.8, 0)), False)
sketch4.addGeometry(Part.LineSegment(App.Vector(96.8, 58.8, 0), App.Vector(93.8, 58.8, 0)), False)
sketch4.addGeometry(Part.LineSegment(App.Vector(-93.8, 58.8, 0), App.Vector(-96.8, 58.8, 0)), False)
sketch4.addGeometry(Part.LineSegment(App.Vector(-96.8, 58.8, 0), App.Vector(-96.8, 73.8, 0)), False)
sketch4.addGeometry(Part.LineSegment(App.Vector(-96.8, 73.8, 0), App.Vector(-81.8, 73.8, 0)), False)
sketch4.addGeometry(Part.LineSegment(App.Vector(-81.8, 73.8, 0), App.Vector(-81.8, 70.8, 0)), False)
sketch4.addGeometry(Part.LineSegment(App.Vector(-81.8, 70.8, 0), App.Vector(-93.8, 70.8, 0)), False)
sketch4.addGeometry(Part.LineSegment(App.Vector(-93.8, 70.8, 0), App.Vector(-93.8, 58.8, 0)), False)
sketch4.addConstraint(Sketcher.Constraint("Coincident", 0, 2, 1, 1))
sketch4.addConstraint(Sketcher.Constraint("Coincident", 1, 2, 2, 1))
sketch4.addConstraint(Sketcher.Constraint("Coincident", 2, 2, 3, 1))
sketch4.addConstraint(Sketcher.Constraint("Coincident", 3, 2, 4, 1))
sketch4.addConstraint(Sketcher.Constraint("Coincident", 4, 2, 5, 1))
sketch4.addConstraint(Sketcher.Constraint("Coincident", 5, 2, 0, 1))
sketch4.addConstraint(Sketcher.Constraint("Coincident", 6, 2, 7, 1))
sketch4.addConstraint(Sketcher.Constraint("Coincident", 7, 2, 8, 1))
sketch4.addConstraint(Sketcher.Constraint("Coincident", 8, 2, 9, 1))
sketch4.addConstraint(Sketcher.Constraint("Coincident", 9, 2, 10, 1))
sketch4.addConstraint(Sketcher.Constraint("Coincident", 10, 2, 11, 1))
sketch4.addConstraint(Sketcher.Constraint("Coincident", 11, 2, 6, 1))
sketch4.addConstraint(Sketcher.Constraint("Coincident", 12, 2, 13, 1))
sketch4.addConstraint(Sketcher.Constraint("Coincident", 13, 2, 14, 1))
sketch4.addConstraint(Sketcher.Constraint("Coincident", 14, 2, 15, 1))
sketch4.addConstraint(Sketcher.Constraint("Coincident", 15, 2, 16, 1))
sketch4.addConstraint(Sketcher.Constraint("Coincident", 16, 2, 17, 1))
sketch4.addConstraint(Sketcher.Constraint("Coincident", 17, 2, 12, 1))
sketch4.addConstraint(Sketcher.Constraint("Coincident", 18, 2, 19, 1))
sketch4.addConstraint(Sketcher.Constraint("Coincident", 19, 2, 20, 1))
sketch4.addConstraint(Sketcher.Constraint("Coincident", 20, 2, 21, 1))
sketch4.addConstraint(Sketcher.Constraint("Coincident", 21, 2, 22, 1))
sketch4.addConstraint(Sketcher.Constraint("Coincident", 22, 2, 23, 1))
sketch4.addConstraint(Sketcher.Constraint("Coincident", 23, 2, 18, 1))
sketch4.addConstraint(Sketcher.Constraint("Horizontal", 0))
sketch4.addConstraint(Sketcher.Constraint("Vertical", 1))
sketch4.addConstraint(Sketcher.Constraint("Horizontal", 2))
sketch4.addConstraint(Sketcher.Constraint("Vertical", 3))
sketch4.addConstraint(Sketcher.Constraint("Horizontal", 4))
sketch4.addConstraint(Sketcher.Constraint("Vertical", 5))
sketch4.addConstraint(Sketcher.Constraint("Horizontal", 6))
sketch4.addConstraint(Sketcher.Constraint("Vertical", 7))
sketch4.addConstraint(Sketcher.Constraint("Horizontal", 8))
sketch4.addConstraint(Sketcher.Constraint("Vertical", 9))
sketch4.addConstraint(Sketcher.Constraint("Horizontal", 10))
sketch4.addConstraint(Sketcher.Constraint("Vertical", 11))
sketch4.addConstraint(Sketcher.Constraint("Vertical", 12))
sketch4.addConstraint(Sketcher.Constraint("Horizontal", 13))
sketch4.addConstraint(Sketcher.Constraint("Vertical", 14))
sketch4.addConstraint(Sketcher.Constraint("Horizontal", 15))
sketch4.addConstraint(Sketcher.Constraint("Vertical", 16))
sketch4.addConstraint(Sketcher.Constraint("Horizontal", 17))
sketch4.addConstraint(Sketcher.Constraint("Horizontal", 18))
sketch4.addConstraint(Sketcher.Constraint("Vertical", 19))
sketch4.addConstraint(Sketcher.Constraint("Horizontal", 20))
sketch4.addConstraint(Sketcher.Constraint("Vertical", 21))
sketch4.addConstraint(Sketcher.Constraint("Horizontal", 22))
sketch4.addConstraint(Sketcher.Constraint("Vertical", 23))
sketch4.addConstraint(Sketcher.Constraint("Symmetric", 3, 2, 12, 2, -1, 1))
sketch4.addConstraint(Sketcher.Constraint("Symmetric", 5, 2, 14, 2, -1, 1))
sketch4.addConstraint(Sketcher.Constraint("Symmetric", 1, 2, 16, 2, -1, 1))
sketch4.addConstraint(Sketcher.Constraint("Symmetric", 8, 2, 18, 2, -1, 1))
sketch4.addConstraint(Sketcher.Constraint("Symmetric", 10, 2, 20, 2, -1, 1))
sketch4.addConstraint(Sketcher.Constraint("Symmetric", 6, 2, 22, 2, -1, 1))
sketch4.addConstraint(Sketcher.Constraint("Symmetric", 3, 2, 6, 2, -2))
sketch4.addConstraint(Sketcher.Constraint("Symmetric", 1, 2, 8, 2, -2))
sketch4.addConstraint(Sketcher.Constraint("Symmetric", 5, 2, 10, 2, -2))
sketch4.addConstraint(Sketcher.Constraint("Equal", 20, 1))
sketch4.addConstraint(Sketcher.Constraint("Equal", 22, 3))
sketch4.addConstraint(Sketcher.Constraint("DistanceX", 0, 2, 0, 1, Q("15 mm")))
sketch4.addConstraint(Sketcher.Constraint("DistanceX", 2, 1, 2, 2, Q("3 mm")))
sketch4.addConstraint(Sketcher.Constraint("DistanceX", 0, 2, -1, 1, Q("96.8 mm")))
sketch4.addConstraint(Sketcher.Constraint("DistanceY", 0, 2, -1, 1, Q("73.8 mm")))
pad3 = doc.addObject("PartDesign::Pad", "Pad002")
body.addObject(pad3)
pad3.Profile = sketch4
pad3.Length = 5
pad3.Reversed = True
doc.recompute()

fillet2 = doc.addObject("PartDesign::Fillet", "Fillet001")
body.addObject(fillet2)
fillet2.Base = (pad3, edges_at(pad3, [(-22.5, 12, -77), (22.5, 12, -77)]))
fillet2.Radius = 5

doc.recompute()
